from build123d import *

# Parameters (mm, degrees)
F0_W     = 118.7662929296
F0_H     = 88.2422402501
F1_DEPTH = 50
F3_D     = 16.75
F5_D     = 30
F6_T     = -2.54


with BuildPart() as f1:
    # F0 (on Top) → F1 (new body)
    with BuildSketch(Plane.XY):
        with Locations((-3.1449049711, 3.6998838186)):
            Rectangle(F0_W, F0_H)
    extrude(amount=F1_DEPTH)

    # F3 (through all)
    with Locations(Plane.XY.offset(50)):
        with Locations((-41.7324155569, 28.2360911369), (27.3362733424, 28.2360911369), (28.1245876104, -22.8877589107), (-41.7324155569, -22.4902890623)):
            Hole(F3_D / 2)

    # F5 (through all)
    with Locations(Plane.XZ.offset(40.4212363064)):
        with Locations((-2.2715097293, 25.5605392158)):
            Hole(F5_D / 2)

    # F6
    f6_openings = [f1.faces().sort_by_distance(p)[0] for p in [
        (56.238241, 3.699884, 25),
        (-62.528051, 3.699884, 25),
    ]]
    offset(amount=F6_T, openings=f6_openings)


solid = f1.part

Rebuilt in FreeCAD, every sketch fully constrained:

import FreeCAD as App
import Part
import Sketcher

V = App.Vector
Q = App.Units.Quantity


def faces_at(feature, points):
    """Names of the faces that lie closest to the given points."""
    faces = feature.Shape.Faces
    near = lambda p: min(range(len(faces)), key=lambda i: faces[i].distToShape(Part.Vertex(*p))[0])
    return sorted({f"Face{near(p) + 1}" for p in points})

doc = App.newDocument("Part")
params = doc.addObject("Spreadsheet::Sheet", "Params")
for row, (alias, value) in enumerate([
    ("pad1_length", "50 mm"),
    ("sketch2_diameter", "16.75 mm"),
    ("hole_diameter", "16.75 mm"),
    ("sketch3_diameter", "30 mm"),
    ("hole2_diameter", "30 mm"),
    ("thickness_wall", "2.54 mm"),
], start=1):
    params.set(f"A{row}", alias)
    params.set(f"B{row}", "=" + value)
    params.setAlias(f"B{row}", alias)

body = doc.addObject("PartDesign::Body", "Body")

# Sketch on XY plane
sketch1 = body.newObject("Sketcher::SketchObject", "Sketch")
sketch1.AttachmentSupport = (doc.getObject("XY_Plane"), [""])
sketch1.MapMode = "FlatFace"
sketch1.addGeometry(Part.LineSegment(V(-62.528051, 47.821004, 0), V(-62.528051, -40.421236, 0)), False)
sketch1.addGeometry(Part.LineSegment(V(-62.528051, -40.421236, 0), V(56.238241, -40.421236, 0)), False)
sketch1.addGeometry(Part.LineSegment(V(56.238241, -40.421236, 0), V(56.238241, 47.821004, 0)), False)
sketch1.addGeometry(Part.LineSegment(V(56.238241, 47.821004, 0), V(-62.528051, 47.821004, 0)), False)
sketch1.addConstraint(Sketcher.Constraint("Coincident", 0, 2, 1, 1))
sketch1.addConstraint(Sketcher.Constraint("Coincident", 1, 2, 2, 1))
sketch1.addConstraint(Sketcher.Constraint("Coincident", 2, 2, 3, 1))
sketch1.addConstraint(Sketcher.Constraint("Coincident", 3, 2, 0, 1))
sketch1.addConstraint(Sketcher.Constraint("Vertical", 0))
sketch1.addConstraint(Sketcher.Constraint("Horizontal", 1))
sketch1.addConstraint(Sketcher.Constraint("Vertical", 2))
sketch1.addConstraint(Sketcher.Constraint("Horizontal", 3))
sketch1.addConstraint(Sketcher.Constraint("DistanceY", 0, 2, 0, 1, Q("88.24224 mm")))
sketch1.addConstraint(Sketcher.Constraint("DistanceX", 1, 1, 1, 2, Q("118.766293 mm")))
sketch1.addConstraint(Sketcher.Constraint("DistanceX", 0, 2, -1, 1, Q("62.528051 mm")))
sketch1.addConstraint(Sketcher.Constraint("DistanceY", 0, 2, -1, 1, Q("40.421236 mm")))
pad1 = body.newObject("PartDesign::Pad", "Pad")
pad1.Profile = sketch1
pad1.setExpression("Length", "Params.pad1_length")

# Sketch on XY plane
sketch2 = body.newObject("Sketcher::SketchObject", "Sketch001")
sketch2.AttachmentSupport = (doc.getObject("XY_Plane"), [""])
sketch2.MapMode = "FlatFace"
sketch2.AttachmentOffset = App.Placement(V(0, 0, 50), App.Rotation())
sketch2.addGeometry(Part.Circle(V(-41.732416, 28.236091, 0), V(0, 0, 1), 8.375), False)
sketch2.addGeometry(Part.Circle(V(27.336273, 28.236091, 0), V(0, 0, 1), 8.375), False)
sketch2.addGeometry(Part.Circle(V(28.124588, -22.887759, 0), V(0, 0, 1), 8.375), False)
sketch2.addGeometry(Part.Circle(V(-41.732416, -22.490289, 0), V(0, 0, 1), 8.375), False)
sketch2.addConstraint(Sketcher.Constraint("Equal", 0, 1))
sketch2.addConstraint(Sketcher.Constraint("Equal", 1, 2))
sketch2.addConstraint(Sketcher.Constraint("Equal", 2, 3))
sketch2.addConstraint(Sketcher.Constraint("Horizontal", 0, 3, 1, 3))
sketch2.addConstraint(Sketcher.Constraint("Vertical", 0, 3, 3, 3))
sketch2.addConstraint(Sketcher.Constraint("Diameter", 0, Q("16.75 mm")))
sketch2.addConstraint(Sketcher.Constraint("DistanceY", -1, 1, 0, 3, Q("28.236091 mm")))
sketch2.addConstraint(Sketcher.Constraint("DistanceY", 2, 3, -1, 1, Q("22.887759 mm")))
sketch2.addConstraint(Sketcher.Constraint("DistanceY", 3, 3, -1, 1, Q("22.490289 mm")))
sketch2.addConstraint(Sketcher.Constraint("DistanceX", 0, 3, 1, 3, Q("69.068689 mm")))
sketch2.addConstraint(Sketcher.Constraint("DistanceX", 0, 3, -1, 1, Q("41.732416 mm")))
sketch2.addConstraint(Sketcher.Constraint("DistanceX", -1, 1, 2, 3, Q("28.124588 mm")))
sketch2.setExpression("Constraints[5]", "Params.sketch2_diameter")
doc.recompute()
hole = body.newObject("PartDesign::Hole", "Hole")
hole.Profile = sketch2
hole.ThreadType = "None"
hole.setExpression("Diameter", "Params.hole_diameter")
hole.DepthType = "ThroughAll"

# Sketch on XZ plane
sketch3 = body.newObject("Sketcher::SketchObject", "Sketch002")
sketch3.AttachmentSupport = (doc.getObject("XZ_Plane"), [""])
sketch3.MapMode = "FlatFace"
sketch3.AttachmentOffset = App.Placement(V(0, 0, 40.421236), App.Rotation())
sketch3.addGeometry(Part.Circle(V(-2.27151, 25.560539, 0), V(0, 0, 1), 15), False)
sketch3.addConstraint(Sketcher.Constraint("Diameter", 0, Q("30 mm")))
sketch3.addConstraint(Sketcher.Constraint("DistanceX", 0, 3, -1, 1, Q("2.27151 mm")))
sketch3.addConstraint(Sketcher.Constraint("DistanceY", -1, 1, 0, 3, Q("25.560539 mm")))
sketch3.setExpression("Constraints[0]", "Params.sketch3_diameter")
doc.recompute()
hole2 = body.newObject("PartDesign::Hole", "Hole001")
hole2.Profile = sketch3
hole2.ThreadType = "None"
hole2.setExpression("Diameter", "Params.hole2_diameter")
hole2.DepthType = "ThroughAll"
doc.recompute()

thickness = body.newObject("PartDesign::Thickness", "Thickness")
thickness.Base = (hole2, faces_at(hole2, [(56.238, 3.7, 25), (-62.528, 3.7, 25)]))
thickness.setExpression("Value", "Params.thickness_wall")
thickness.Reversed = True
thickness.Join = "Arc"

doc.recompute()
